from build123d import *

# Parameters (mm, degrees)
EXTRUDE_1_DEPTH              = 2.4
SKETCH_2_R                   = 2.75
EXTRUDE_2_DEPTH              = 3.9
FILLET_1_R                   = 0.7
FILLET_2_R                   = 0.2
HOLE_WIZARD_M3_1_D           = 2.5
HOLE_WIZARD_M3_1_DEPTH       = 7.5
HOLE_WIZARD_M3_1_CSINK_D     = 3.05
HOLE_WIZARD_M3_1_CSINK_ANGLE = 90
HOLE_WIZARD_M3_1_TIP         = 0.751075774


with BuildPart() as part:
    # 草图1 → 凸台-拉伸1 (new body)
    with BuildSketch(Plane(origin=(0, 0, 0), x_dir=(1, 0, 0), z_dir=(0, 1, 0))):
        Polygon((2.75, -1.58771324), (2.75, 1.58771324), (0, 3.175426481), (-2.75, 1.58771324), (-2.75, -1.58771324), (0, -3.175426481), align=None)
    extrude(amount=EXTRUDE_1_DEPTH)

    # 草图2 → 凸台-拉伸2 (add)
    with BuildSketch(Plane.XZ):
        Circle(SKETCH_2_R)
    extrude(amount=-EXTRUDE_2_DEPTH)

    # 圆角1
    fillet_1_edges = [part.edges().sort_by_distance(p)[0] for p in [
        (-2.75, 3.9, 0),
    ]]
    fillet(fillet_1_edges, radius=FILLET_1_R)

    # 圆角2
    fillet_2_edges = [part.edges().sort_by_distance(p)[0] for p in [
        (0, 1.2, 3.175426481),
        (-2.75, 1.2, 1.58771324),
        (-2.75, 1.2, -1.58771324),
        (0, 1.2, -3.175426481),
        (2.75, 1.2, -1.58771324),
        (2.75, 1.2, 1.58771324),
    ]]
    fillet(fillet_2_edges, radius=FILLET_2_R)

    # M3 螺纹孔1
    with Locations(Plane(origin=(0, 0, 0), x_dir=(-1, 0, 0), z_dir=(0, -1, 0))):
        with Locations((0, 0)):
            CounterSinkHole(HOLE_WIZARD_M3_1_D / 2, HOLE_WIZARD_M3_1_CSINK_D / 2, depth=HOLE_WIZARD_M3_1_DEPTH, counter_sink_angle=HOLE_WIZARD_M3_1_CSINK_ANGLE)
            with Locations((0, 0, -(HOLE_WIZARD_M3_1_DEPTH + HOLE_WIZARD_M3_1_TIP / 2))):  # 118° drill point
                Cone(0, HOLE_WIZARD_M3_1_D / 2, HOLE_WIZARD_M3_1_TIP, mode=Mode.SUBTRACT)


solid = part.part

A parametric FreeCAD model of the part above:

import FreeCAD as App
import Part
import Sketcher

V = App.Vector
Q = App.Units.Quantity


def edges_at(feature, points):
    """Names of the edges that pass closest to the given points."""
    edges = feature.Shape.Edges
    near = lambda p: min(range(len(edges)), key=lambda i: edges[i].distToShape(Part.Vertex(*p))[0])
    return sorted({f"Edge{near(p) + 1}" for p in points})

doc = App.newDocument("Part")
body = doc.addObject("PartDesign::Body", "Body")

# Sketch on XZ plane
sketch1 = body.newObject("Sketcher::SketchObject", "Sketch")
sketch1.AttachmentSupport = (doc.getObject("XZ_Plane"), [""])
sketch1.MapMode = "FlatFace"
sketch1.addGeometry(Part.LineSegment(V(2.8, 1.6, 0), V(2.8, -1.6, 0)), False)
sketch1.addGeometry(Part.LineSegment(V(2.8, -1.6, 0), V(0, -3.2, 0)), False)
sketch1.addGeometry(Part.LineSegment(V(0, -3.2, 0), V(-2.8, -1.6, 0)), False)
sketch1.addGeometry(Part.LineSegment(V(-2.8, -1.6, 0), V(-2.8, 1.6, 0)), False)
sketch1.addGeometry(Part.LineSegment(V(-2.8, 1.6, 0), V(0, 3.2, 0)), False)
sketch1.addGeometry(Part.LineSegment(V(0, 3.2, 0), V(2.8, 1.6, 0)), False)
sketch1.addConstraint(Sketcher.Constraint("Coincident", 0, 2, 1, 1))
sketch1.addConstraint(Sketcher.Constraint("Coincident", 1, 2, 2, 1))
sketch1.addConstraint(Sketcher.Constraint("Coincident", 2, 2, 3, 1))
sketch1.addConstraint(Sketcher.Constraint("Coincident", 3, 2, 4, 1))
sketch1.addConstraint(Sketcher.Constraint("Coincident", 4, 2, 5, 1))
sketch1.addConstraint(Sketcher.Constraint("Coincident", 5, 2, 0, 1))
sketch1.addConstraint(Sketcher.Constraint("Vertical", 0))
sketch1.addConstraint(Sketcher.Constraint("Vertical", 3))
sketch1.addConstraint(Sketcher.Constraint("Symmetric", 0, 2, 3, 2, -1, 1))
sketch1.addConstraint(Sketcher.Constraint("Symmetric", 1, 2, 4, 2, -1, 1))
sketch1.addConstraint(Sketcher.Constraint("PointOnObject", 1, 2, -2))
sketch1.addConstraint(Sketcher.Constraint("Parallel", 2, 5))
sketch1.addConstraint(Sketcher.Constraint("Horizontal", 0, 2, 2, 2))
sketch1.addConstraint(Sketcher.Constraint("Angle", 1, Q("-150 deg")))
sketch1.addConstraint(Sketcher.Constraint("DistanceX", 2, 2, 0, 2, Q("5.5 mm")))
sketch1.addConstraint(Sketcher.Constraint("DistanceY", 0, 2, 0, 1, Q("3.175426 mm")))
pad1 = body.newObject("PartDesign::Pad", "Pad")
pad1.Profile = sketch1
pad1.Length = 2.4
pad1.Reversed = True

# Sketch on XZ plane
sketch2 = body.newObject("Sketcher::SketchObject", "Sketch001")
sketch2.AttachmentSupport = (doc.getObject("XZ_Plane"), [""])
sketch2.MapMode = "FlatFace"
sketch2.addGeometry(Part.Circle(V(0, 0, 0), V(0, 0, 1), 2.8), False)
sketch2.addConstraint(Sketcher.Constraint("Coincident", 0, 3, -1, 1))
sketch2.addConstraint(Sketcher.Constraint("Diameter", 0, Q("5.5 mm")))
pad2 = body.newObject("PartDesign::Pad", "Pad001")
pad2.Profile = sketch2
pad2.Length = 3.9
pad2.Reversed = True
doc.recompute()

fillet = body.newObject("PartDesign::Fillet", "Fillet")
fillet.Base = (pad2, edges_at(pad2, [(-2.75, 3.9, 0)]))
fillet.Radius = 0.7
doc.recompute()

fillet2 = body.newObject("PartDesign::Fillet", "Fillet001")
fillet2.Base = (fillet, edges_at(fillet, [
    (0, 1.2, 3.175),
    (-2.75, 1.2, 1.588),
    (-2.75, 1.2, -1.588),
    (0, 1.2, -3.175),
    (2.75, 1.2, -1.588),
    (2.75, 1.2, 1.588),
]))
fillet2.Radius = 0.2

# Sketch on XZ plane
sketch3 = body.newObject("Sketcher::SketchObject", "Sketch002")
sketch3.AttachmentSupport = (doc.getObject("XZ_Plane"), [""])
sketch3.MapMode = "FlatFace"
sketch3.addGeometry(Part.Circle(V(0, 0, 0), V(0, 0, 1), 1.2), False)
sketch3.addConstraint(Sketcher.Constraint("Coincident", 0, 3, -1, 1))
sketch3.addConstraint(Sketcher.Constraint("Diameter", 0, Q("2.5 mm")))
doc.recompute()
hole = body.newObject("PartDesign::Hole", "Hole")
hole.Profile = sketch3
hole.ThreadType = "None"
hole.Diameter = 2.5
hole.DepthType = "Dimension"
hole.Depth = 7.5
hole.DrillPoint = "Angled"
hole.DrillPointAngle = 118
hole.HoleCutType = "Countersink"
hole.HoleCutDiameter = 3.05
hole.HoleCutCountersinkAngle = 90

doc.recompute()
